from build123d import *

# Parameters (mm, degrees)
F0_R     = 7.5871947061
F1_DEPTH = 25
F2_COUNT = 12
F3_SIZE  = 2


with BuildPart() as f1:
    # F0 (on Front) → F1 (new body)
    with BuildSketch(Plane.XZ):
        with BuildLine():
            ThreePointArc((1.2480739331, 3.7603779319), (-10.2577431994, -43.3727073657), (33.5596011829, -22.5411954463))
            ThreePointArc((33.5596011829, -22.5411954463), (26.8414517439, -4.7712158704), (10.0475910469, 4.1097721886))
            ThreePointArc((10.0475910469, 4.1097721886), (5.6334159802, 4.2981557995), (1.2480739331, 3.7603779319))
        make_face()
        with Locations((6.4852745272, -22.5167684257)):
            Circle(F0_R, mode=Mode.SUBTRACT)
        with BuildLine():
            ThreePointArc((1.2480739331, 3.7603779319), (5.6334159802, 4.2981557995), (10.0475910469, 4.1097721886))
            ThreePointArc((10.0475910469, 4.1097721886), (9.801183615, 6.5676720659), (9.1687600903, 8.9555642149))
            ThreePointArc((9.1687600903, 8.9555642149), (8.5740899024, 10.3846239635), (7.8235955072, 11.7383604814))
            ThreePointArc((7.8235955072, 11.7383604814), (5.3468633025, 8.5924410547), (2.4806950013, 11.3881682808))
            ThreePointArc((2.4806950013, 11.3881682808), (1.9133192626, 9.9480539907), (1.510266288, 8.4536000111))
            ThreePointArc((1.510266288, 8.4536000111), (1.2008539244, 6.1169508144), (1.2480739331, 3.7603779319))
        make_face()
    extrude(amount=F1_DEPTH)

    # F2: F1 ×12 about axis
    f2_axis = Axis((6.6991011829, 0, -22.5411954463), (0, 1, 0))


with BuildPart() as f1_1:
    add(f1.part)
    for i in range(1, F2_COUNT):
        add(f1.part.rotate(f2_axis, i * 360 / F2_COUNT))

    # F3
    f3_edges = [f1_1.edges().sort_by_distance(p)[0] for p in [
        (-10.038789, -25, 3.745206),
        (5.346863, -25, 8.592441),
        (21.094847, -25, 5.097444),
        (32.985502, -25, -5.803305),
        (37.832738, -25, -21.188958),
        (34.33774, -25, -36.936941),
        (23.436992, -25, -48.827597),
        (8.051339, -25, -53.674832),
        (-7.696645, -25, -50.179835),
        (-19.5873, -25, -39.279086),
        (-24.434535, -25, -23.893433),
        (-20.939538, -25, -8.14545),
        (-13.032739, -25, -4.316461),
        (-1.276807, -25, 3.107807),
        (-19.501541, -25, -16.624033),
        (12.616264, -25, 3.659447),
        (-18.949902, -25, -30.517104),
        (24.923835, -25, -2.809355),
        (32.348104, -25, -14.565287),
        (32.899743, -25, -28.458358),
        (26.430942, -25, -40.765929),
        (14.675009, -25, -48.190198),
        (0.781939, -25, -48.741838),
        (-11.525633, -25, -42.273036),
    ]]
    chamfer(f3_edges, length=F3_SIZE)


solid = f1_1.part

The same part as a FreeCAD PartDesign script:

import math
import FreeCAD as App
import Part
import Sketcher
from FreeCAD import Vector
Q = App.Units.Quantity


def edges_at(feature, points):
    """Names of the edges that pass closest to the given points."""
    edges = feature.Shape.Edges
    near = lambda p: min(range(len(edges)), key=lambda i: edges[i].distToShape(Part.Vertex(*p))[0])
    return sorted({f"Edge{near(p) + 1}" for p in points})

doc = App.newDocument("Part")
body = doc.addObject("PartDesign::Body", "Body")

sketch1 = body.newObject("Sketcher::SketchObject", "Sketch")
sketch1.AttachmentSupport = (doc.getObject("XZ_Plane"), [""])
sketch1.MapMode = "FlatFace"
sketch1.addGeometry(Part.ArcOfCircle(Part.Circle(Vector(6.7, -22.5, 0), Vector(0, 0, 1), 26.9), math.radians(102), math.radians(360)), False)
sketch1.addGeometry(Part.ArcOfCircle(Part.Circle(Vector(6.7, -22.5, 0), Vector(0, 0, 1), 26.9), math.radians(0), math.radians(83)), False)
sketch1.addGeometry(Part.ArcOfCircle(Part.Circle(Vector(-5.5, 3.8, 0), Vector(0, 0, 1), 15.6), math.radians(1.17), math.radians(19.39)), False)
sketch1.addGeometry(Part.ArcOfCircle(Part.Circle(Vector(-3.9, 4.4, 0), Vector(0, 0, 1), 13.8), math.radians(19.39), math.radians(32.21)), False)
sketch1.addGeometry(Part.ArcOfCircle(Part.Circle(Vector(5.2, 11.3, 0), Vector(0, 0, 1), 2.7), math.radians(178), math.radians(370)), False)
sketch1.addGeometry(Part.ArcOfCircle(Part.Circle(Vector(15.1, 5.6, 0), Vector(0, 0, 1), 13.8), math.radians(155.29), math.radians(168.11)), False)
sketch1.addGeometry(Part.ArcOfCircle(Part.Circle(Vector(16.7, 5.2, 0), Vector(0, 0, 1), 15.6), math.radians(168.11), math.radians(185.49)), False)
sketch1.addGeometry(Part.Circle(Vector(6.5, -22.5, 0), Vector(0, 0, 1), 7.6), False)
sketch1.addConstraint(Sketcher.Constraint("Tangent", 0, 2, 1, 1))
sketch1.addConstraint(Sketcher.Constraint("Coincident", 1, 2, 2, 1))
sketch1.addConstraint(Sketcher.Constraint("Tangent", 2, 2, 3, 1))
sketch1.addConstraint(Sketcher.Constraint("Coincident", 3, 2, 4, 2))
sketch1.addConstraint(Sketcher.Constraint("Coincident", 4, 1, 5, 1))
sketch1.addConstraint(Sketcher.Constraint("Tangent", 5, 2, 6, 1))
sketch1.addConstraint(Sketcher.Constraint("Coincident", 6, 2, 0, 1))
sketch1.addConstraint(Sketcher.Constraint("Equal", 0, 1))
sketch1.addConstraint(Sketcher.Constraint("Equal", 3, 5))
sketch1.addConstraint(Sketcher.Constraint("Equal", 2, 6))
sketch1.addConstraint(Sketcher.Constraint("Horizontal", 1, 3, 0, 2))
sketch1.addConstraint(Sketcher.Constraint("Radius", 0, Q("26.8605 mm")))
sketch1.addConstraint(Sketcher.Constraint("Radius", 4, Q("2.692299 mm")))
sketch1.addConstraint(Sketcher.Constraint("Diameter", 7, Q("15.174389 mm")))
sketch1.addConstraint(Sketcher.Constraint("Radius", 2, Q("15.553877 mm")))
sketch1.addConstraint(Sketcher.Constraint("Radius", 3, Q("13.842853 mm")))
sketch1.addConstraint(Sketcher.Constraint("DistanceX", -1, 1, 0, 3, Q("6.699101 mm")))
sketch1.addConstraint(Sketcher.Constraint("DistanceY", -1, 1, 5, 2, Q("8.4536 mm")))
sketch1.addConstraint(Sketcher.Constraint("DistanceY", 0, 3, 2, 3, Q("26.333299 mm")))
sketch1.addConstraint(Sketcher.Constraint("DistanceX", 1, 2, 5, 3, Q("5.008601 mm")))
sketch1.addConstraint(Sketcher.Constraint("DistanceX", 4, 1, 3, 2, Q("5.342901 mm")))
sketch1.addConstraint(Sketcher.Constraint("DistanceX", 2, 3, -1, 1, Q("5.503042 mm")))
sketch1.addConstraint(Sketcher.Constraint("DistanceX", 3, 3, -1, 1, Q("3.889051 mm")))
sketch1.addConstraint(Sketcher.Constraint("DistanceX", -1, 1, 4, 3, Q("5.170779 mm")))
sketch1.addConstraint(Sketcher.Constraint("DistanceY", -1, 1, 6, 3, Q("5.249368 mm")))
sketch1.addConstraint(Sketcher.Constraint("DistanceY", 7, 3, -1, 1, Q("22.516768 mm")))
sketch1.addConstraint(Sketcher.Constraint("DistanceY", -1, 1, 3, 2, Q("11.73836 mm")))
sketch1.addConstraint(Sketcher.Constraint("DistanceX", -1, 1, 7, 3, Q("6.485275 mm")))
pad1 = body.newObject("PartDesign::Pad", "Pad")
pad1.Profile = sketch1
pad1.Length = 25
body2 = doc.addObject("PartDesign::Body", "Body001")
doc.recompute()

body2.BaseFeature = body
doc.recompute()

body3 = doc.addObject("PartDesign::Body", "Body002")
body3.BaseFeature = body
body3.Placement = App.Placement(Vector(12.168107, 0, 0.329603), App.Rotation(Vector(0, 1, 0), 30))
boolean = body2.newObject("PartDesign::Boolean", "Boolean")
boolean.Type = "Fuse"
boolean.addObjects([body3])
doc.recompute()

body4 = doc.addObject("PartDesign::Body", "Body003")
body4.BaseFeature = body
body4.Placement = App.Placement(Vector(22.870798, 0, -5.469006), App.Rotation(Vector(0, 1, 0), 60))
boolean2 = body2.newObject("PartDesign::Boolean", "Boolean001")
boolean2.Type = "Fuse"
boolean2.addObjects([body4])
doc.recompute()

body5 = doc.addObject("PartDesign::Body", "Body004")
body5.BaseFeature = body
body5.Placement = App.Placement(Vector(29.240297, 0, -15.842094), App.Rotation(Vector(0, 1, 0), 90))
boolean3 = body2.newObject("PartDesign::Boolean", "Boolean002")
boolean3.Type = "Fuse"
boolean3.addObjects([body5])
doc.recompute()

body6 = doc.addObject("PartDesign::Body", "Body005")
body6.BaseFeature = body
body6.Placement = App.Placement(Vector(29.5699, 0, -28.010201), App.Rotation(Vector(0, 1, 0), 120))
boolean4 = body2.newObject("PartDesign::Boolean", "Boolean003")
boolean4.Type = "Fuse"
boolean4.addObjects([body6])
doc.recompute()

body7 = doc.addObject("PartDesign::Body", "Body006")
body7.BaseFeature = body
body7.Placement = App.Placement(Vector(23.771291, 0, -38.712893), App.Rotation(Vector(0, 1, 0), 150))
boolean5 = body2.newObject("PartDesign::Boolean", "Boolean004")
boolean5.Type = "Fuse"
boolean5.addObjects([body7])
doc.recompute()

body8 = doc.addObject("PartDesign::Body", "Body007")
body8.BaseFeature = body
body8.Placement = App.Placement(Vector(13.398202, 0, -45.082391), App.Rotation(Vector(0, 1, 0), 180))
boolean6 = body2.newObject("PartDesign::Boolean", "Boolean005")
boolean6.Type = "Fuse"
boolean6.addObjects([body8])
doc.recompute()

body9 = doc.addObject("PartDesign::Body", "Body008")
body9.BaseFeature = body
body9.Placement = App.Placement(Vector(1.230095, 0, -45.411994), App.Rotation(Vector(0, 1, 0), 210))
boolean7 = body2.newObject("PartDesign::Boolean", "Boolean006")
boolean7.Type = "Fuse"
boolean7.addObjects([body9])
doc.recompute()

body10 = doc.addObject("PartDesign::Body", "Body009")
body10.BaseFeature = body
body10.Placement = App.Placement(Vector(-9.472596, 0, -39.613385), App.Rotation(Vector(0, 1, 0), 240))
boolean8 = body2.newObject("PartDesign::Boolean", "Boolean007")
boolean8.Type = "Fuse"
boolean8.addObjects([body10])
doc.recompute()

body11 = doc.addObject("PartDesign::Body", "Body010")
body11.BaseFeature = body
body11.Placement = App.Placement(Vector(-15.842094, 0, -29.240297), App.Rotation(Vector(0, 1, 0), 270))
boolean9 = body2.newObject("PartDesign::Boolean", "Boolean008")
boolean9.Type = "Fuse"
boolean9.addObjects([body11])
doc.recompute()

body12 = doc.addObject("PartDesign::Body", "Body011")
body12.BaseFeature = body
body12.Placement = App.Placement(Vector(-16.171697, 0, -17.07219), App.Rotation(Vector(0, 1, 0), 300))
boolean10 = body2.newObject("PartDesign::Boolean", "Boolean009")
boolean10.Type = "Fuse"
boolean10.addObjects([body12])
doc.recompute()

body.Placement = App.Placement(Vector(-10.373088, 0, -6.369498), App.Rotation(Vector(0, 1, 0), 330))
boolean11 = body2.newObject("PartDesign::Boolean", "Boolean010")
boolean11.Type = "Fuse"
boolean11.addObjects([body])
doc.recompute()

chamfer = body2.newObject("PartDesign::Chamfer", "Chamfer")
chamfer.Base = (boolean11, edges_at(boolean11, [
    (-10.039, -25, 3.745),
    (5.347, -25, 8.592),
    (21.095, -25, 5.097),
    (32.986, -25, -5.803),
    (37.833, -25, -21.189),
    (34.338, -25, -36.937),
    (23.437, -25, -48.828),
    (8.051, -25, -53.675),
    (-7.697, -25, -50.18),
    (-19.587, -25, -39.279),
    (-24.435, -25, -23.893),
    (-20.94, -25, -8.145),
    (-13.033, -25, -4.316),
    (-1.277, -25, 3.108),
    (-19.502, -25, -16.624),
    (12.616, -25, 3.659),
    (-18.95, -25, -30.517),
    (24.924, -25, -2.809),
    (32.348, -25, -14.565),
    (32.9, -25, -28.458),
    (26.431, -25, -40.766),
    (14.675, -25, -48.19),
    (0.782, -25, -48.742),
    (-11.526, -25, -42.273),
]))
chamfer.Size = 2

doc.recompute()
